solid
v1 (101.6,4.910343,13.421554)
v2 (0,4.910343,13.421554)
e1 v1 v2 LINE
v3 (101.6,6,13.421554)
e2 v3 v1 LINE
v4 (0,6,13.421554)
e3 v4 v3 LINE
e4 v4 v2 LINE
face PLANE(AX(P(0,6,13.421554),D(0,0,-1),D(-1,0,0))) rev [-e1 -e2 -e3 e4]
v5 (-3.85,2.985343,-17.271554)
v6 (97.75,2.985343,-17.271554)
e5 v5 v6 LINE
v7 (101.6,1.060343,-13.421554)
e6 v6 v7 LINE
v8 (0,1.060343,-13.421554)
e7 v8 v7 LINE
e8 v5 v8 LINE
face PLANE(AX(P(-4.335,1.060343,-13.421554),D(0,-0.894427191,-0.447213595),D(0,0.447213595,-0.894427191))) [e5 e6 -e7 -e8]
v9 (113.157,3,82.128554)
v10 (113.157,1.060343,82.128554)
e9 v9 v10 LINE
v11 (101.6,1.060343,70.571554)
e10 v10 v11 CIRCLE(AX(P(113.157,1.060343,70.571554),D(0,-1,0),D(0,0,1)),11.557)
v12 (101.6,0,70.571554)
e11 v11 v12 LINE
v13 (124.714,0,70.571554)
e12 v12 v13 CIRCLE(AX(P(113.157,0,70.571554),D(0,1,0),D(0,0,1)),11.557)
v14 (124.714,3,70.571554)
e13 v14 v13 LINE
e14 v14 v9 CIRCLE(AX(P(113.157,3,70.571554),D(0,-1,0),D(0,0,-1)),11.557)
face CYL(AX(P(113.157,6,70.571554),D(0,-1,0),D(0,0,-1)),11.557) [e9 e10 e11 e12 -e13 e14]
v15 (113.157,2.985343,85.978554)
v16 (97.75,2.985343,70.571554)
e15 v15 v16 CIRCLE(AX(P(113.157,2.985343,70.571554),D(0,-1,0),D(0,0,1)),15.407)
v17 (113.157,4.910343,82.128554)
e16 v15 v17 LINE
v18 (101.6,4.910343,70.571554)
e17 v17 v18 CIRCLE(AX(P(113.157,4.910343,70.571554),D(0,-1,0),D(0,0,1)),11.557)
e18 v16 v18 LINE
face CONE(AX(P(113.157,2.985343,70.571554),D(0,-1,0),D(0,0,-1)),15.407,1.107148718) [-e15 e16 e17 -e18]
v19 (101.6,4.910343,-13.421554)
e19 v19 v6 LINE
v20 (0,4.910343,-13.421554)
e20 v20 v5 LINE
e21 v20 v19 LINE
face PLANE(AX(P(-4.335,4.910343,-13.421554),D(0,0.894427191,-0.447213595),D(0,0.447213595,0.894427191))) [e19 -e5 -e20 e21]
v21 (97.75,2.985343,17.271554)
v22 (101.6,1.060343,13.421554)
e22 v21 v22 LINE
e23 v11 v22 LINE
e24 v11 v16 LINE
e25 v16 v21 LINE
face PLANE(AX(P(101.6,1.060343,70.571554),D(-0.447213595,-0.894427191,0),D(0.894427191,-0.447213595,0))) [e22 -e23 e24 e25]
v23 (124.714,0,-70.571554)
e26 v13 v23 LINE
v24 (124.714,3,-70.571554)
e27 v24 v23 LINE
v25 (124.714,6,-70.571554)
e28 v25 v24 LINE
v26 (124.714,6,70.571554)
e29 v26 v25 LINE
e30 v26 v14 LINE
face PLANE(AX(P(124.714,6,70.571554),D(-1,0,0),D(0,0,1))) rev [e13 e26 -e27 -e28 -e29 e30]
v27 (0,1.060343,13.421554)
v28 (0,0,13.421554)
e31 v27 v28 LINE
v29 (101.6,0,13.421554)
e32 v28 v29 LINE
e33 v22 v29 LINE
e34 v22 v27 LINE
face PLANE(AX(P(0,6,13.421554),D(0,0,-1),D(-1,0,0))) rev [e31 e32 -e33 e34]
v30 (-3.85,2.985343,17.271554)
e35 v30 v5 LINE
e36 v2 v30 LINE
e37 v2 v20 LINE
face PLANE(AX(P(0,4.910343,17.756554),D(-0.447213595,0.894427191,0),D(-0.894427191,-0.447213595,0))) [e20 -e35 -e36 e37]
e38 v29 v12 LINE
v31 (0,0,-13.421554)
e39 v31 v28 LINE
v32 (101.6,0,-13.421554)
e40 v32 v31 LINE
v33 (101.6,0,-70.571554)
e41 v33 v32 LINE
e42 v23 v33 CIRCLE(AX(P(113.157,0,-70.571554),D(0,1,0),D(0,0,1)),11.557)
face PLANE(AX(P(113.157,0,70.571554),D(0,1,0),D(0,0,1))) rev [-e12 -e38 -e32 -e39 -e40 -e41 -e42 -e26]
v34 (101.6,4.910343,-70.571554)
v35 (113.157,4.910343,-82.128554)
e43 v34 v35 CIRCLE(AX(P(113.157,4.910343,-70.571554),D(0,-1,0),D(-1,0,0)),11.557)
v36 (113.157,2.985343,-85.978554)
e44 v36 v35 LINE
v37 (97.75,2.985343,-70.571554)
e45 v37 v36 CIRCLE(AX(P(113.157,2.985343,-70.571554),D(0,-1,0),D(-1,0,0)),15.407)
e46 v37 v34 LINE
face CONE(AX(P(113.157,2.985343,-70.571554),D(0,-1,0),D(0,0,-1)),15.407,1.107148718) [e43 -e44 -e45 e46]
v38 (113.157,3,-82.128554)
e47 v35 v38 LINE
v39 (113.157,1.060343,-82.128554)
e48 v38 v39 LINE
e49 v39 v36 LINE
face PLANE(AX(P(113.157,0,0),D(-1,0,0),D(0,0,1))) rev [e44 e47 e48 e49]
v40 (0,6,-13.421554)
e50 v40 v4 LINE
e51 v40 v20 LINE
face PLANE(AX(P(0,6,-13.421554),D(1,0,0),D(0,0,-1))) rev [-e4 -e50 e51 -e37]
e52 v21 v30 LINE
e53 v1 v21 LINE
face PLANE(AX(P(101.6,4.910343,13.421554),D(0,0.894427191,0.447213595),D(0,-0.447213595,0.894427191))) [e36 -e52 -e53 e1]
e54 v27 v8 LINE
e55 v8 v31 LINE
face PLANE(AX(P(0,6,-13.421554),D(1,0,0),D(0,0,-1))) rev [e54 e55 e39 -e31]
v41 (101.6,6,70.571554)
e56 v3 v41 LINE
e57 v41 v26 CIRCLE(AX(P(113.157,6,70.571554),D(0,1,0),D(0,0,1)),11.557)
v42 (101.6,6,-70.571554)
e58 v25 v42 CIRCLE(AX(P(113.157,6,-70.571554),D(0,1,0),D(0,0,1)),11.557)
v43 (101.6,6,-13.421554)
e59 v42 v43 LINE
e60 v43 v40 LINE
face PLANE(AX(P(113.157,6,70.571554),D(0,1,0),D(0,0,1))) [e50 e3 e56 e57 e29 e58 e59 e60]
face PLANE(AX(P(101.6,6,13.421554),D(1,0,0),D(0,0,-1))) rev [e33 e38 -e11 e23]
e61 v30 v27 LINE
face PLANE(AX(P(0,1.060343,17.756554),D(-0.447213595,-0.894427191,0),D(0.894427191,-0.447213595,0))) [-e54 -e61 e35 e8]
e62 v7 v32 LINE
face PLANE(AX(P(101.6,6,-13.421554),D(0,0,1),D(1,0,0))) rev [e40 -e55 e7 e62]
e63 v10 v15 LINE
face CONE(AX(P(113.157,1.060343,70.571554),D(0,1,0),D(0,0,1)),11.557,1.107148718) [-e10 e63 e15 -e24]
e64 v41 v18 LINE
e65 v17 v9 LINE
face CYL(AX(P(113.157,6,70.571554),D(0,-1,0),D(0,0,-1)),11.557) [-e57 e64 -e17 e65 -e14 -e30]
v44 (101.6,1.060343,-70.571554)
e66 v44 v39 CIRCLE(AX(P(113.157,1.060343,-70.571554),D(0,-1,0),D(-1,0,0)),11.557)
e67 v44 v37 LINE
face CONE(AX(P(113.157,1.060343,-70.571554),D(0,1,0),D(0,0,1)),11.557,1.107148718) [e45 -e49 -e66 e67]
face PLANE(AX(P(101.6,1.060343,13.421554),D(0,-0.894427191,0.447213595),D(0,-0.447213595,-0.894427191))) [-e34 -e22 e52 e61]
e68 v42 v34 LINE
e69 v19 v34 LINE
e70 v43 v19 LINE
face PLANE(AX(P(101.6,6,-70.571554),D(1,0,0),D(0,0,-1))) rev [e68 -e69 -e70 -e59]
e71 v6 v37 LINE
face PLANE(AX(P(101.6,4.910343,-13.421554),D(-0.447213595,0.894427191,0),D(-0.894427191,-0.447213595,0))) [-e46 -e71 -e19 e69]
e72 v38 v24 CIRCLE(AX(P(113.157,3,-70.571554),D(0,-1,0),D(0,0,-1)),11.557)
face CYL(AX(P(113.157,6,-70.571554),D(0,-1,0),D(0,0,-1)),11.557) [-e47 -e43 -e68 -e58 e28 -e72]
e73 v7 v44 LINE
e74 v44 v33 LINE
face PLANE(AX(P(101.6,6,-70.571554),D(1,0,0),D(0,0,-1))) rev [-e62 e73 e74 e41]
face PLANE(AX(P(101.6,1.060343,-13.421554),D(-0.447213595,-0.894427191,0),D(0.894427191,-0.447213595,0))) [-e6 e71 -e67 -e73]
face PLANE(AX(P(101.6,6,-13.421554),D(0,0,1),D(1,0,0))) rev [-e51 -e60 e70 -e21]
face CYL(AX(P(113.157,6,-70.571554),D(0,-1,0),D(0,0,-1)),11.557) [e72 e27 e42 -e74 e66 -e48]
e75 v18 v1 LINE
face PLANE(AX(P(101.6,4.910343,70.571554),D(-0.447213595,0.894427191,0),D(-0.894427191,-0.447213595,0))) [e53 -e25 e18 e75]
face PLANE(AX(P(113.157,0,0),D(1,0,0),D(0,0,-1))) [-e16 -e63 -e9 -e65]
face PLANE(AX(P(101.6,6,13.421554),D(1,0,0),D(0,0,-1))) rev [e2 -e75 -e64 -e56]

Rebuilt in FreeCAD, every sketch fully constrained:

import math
import FreeCAD as App
import Part
import Sketcher
Q = App.Units.Quantity

doc = App.newDocument("Part")
params = doc.addObject("Spreadsheet::Sheet", "Params")
for row, (alias, value) in enumerate([
    ("sketch1_width", "4 in"),
    ("sketch1_radius", "0.455 in"),
    ("sketch1_height", "2.25 in"),
    ("pad1_length", "6 mm"),
    ("sketch3_width", "4 in"),
    ("sketch3_radius", "0.455 in"),
    ("sketch3_height", "2.25 in"),
], start=1):
    params.set(f"A{row}", alias)
    params.set(f"B{row}", "=" + value)
    params.setAlias(f"B{row}", alias)

body = doc.addObject("PartDesign::Body", "Body")

# Sketch on XZ plane
sketch1 = body.newObject("Sketcher::SketchObject", "Sketch")
sketch1.AttachmentSupport = (doc.getObject("XZ_Plane"), [""])
sketch1.MapMode = "FlatFace"
sketch1.addGeometry([
    Part.LineSegment(App.Vector(0, 13.421554, 0), App.Vector(101.6, 13.421554, 0)),  # 0
    Part.LineSegment(App.Vector(101.6, 13.421554, 0), App.Vector(101.6, 70.571554, 0)),  # 1
    Part.ArcOfCircle(Part.Circle(App.Vector(113.157, 70.571554, 0), App.Vector(0, 0, 1), 11.557), math.radians(0), math.radians(180)),  # 2
    Part.LineSegment(App.Vector(124.714, 70.571554, 0), App.Vector(124.714, -70.571554, 0)),  # 3
    Part.ArcOfCircle(Part.Circle(App.Vector(113.157, -70.571554, 0), App.Vector(0, 0, 1), 11.557), math.radians(180), math.radians(360)),  # 4
    Part.LineSegment(App.Vector(101.6, -70.571554, 0), App.Vector(101.6, -13.421554, 0)),  # 5
    Part.LineSegment(App.Vector(101.6, -13.421554, 0), App.Vector(0, -13.421554, 0)),  # 6
    Part.LineSegment(App.Vector(0, -13.421554, 0), App.Vector(0, 13.421554, 0)),  # 7
], False)
sketch1.addConstraint([
    Sketcher.Constraint("Coincident", 0, 2, 1, 1),
    Sketcher.Constraint("Tangent", 1, 2, 2, 2),
    Sketcher.Constraint("Tangent", 2, 1, 3, 1),
    Sketcher.Constraint("Tangent", 3, 2, 4, 2),
    Sketcher.Constraint("Tangent", 4, 1, 5, 1),
    Sketcher.Constraint("Coincident", 5, 2, 6, 1),
    Sketcher.Constraint("Coincident", 6, 2, 7, 1),
    Sketcher.Constraint("Coincident", 7, 2, 0, 1),
    Sketcher.Constraint("Horizontal", 0),
    Sketcher.Constraint("Vertical", 1),
    Sketcher.Constraint("Vertical", 3),
    Sketcher.Constraint("Vertical", 5),
    Sketcher.Constraint("Horizontal", 6),
    Sketcher.Constraint("Vertical", 7),
    Sketcher.Constraint("Equal", 2, 4),
    Sketcher.Constraint("Symmetric", 6, 2, 7, 2, -1, 1),
    Sketcher.Constraint("Equal", 1, 5),
    Sketcher.Constraint("DistanceX", 0, 1, 0, 2, Q("4 in")),
    Sketcher.Constraint("Radius", 2, Q("0.455 in")),
    Sketcher.Constraint("DistanceY", 1, 1, 1, 2, Q("2.25 in")),
    Sketcher.Constraint("DistanceY", 3, 2, 3, 1, Q("141.143107 mm")),
])
sketch1.setExpression("Constraints[17]", "Params.sketch1_width")
sketch1.setExpression("Constraints[18]", "Params.sketch1_radius")
sketch1.setExpression("Constraints[19]", "Params.sketch1_height")
pad1 = body.newObject("PartDesign::Pad", "Pad")
pad1.Profile = sketch1
pad1.setExpression("Length", "Params.pad1_length")
pad1.Reversed = True

# Sketch on YZ plane
sketch2 = body.newObject("Sketcher::SketchObject", "Sketch001")
sketch2.AttachmentSupport = (doc.getObject("YZ_Plane"), [""])
sketch2.MapMode = "FlatFace"
sketch2.AttachmentOffset = App.Placement(App.Vector(0, 0, 4.455 * 25.4), App.Rotation())
sketch2.addGeometry([
    Part.LineSegment(App.Vector(4.910343, -82.128554, 0), App.Vector(1.060343, -82.128554, 0)),
    Part.LineSegment(App.Vector(1.060343, -82.128554, 0), App.Vector(2.985343, -85.978554, 0)),
    Part.LineSegment(App.Vector(2.985343, -85.978554, 0), App.Vector(4.910343, -82.128554, 0)),
], False)
sketch2.addConstraint([
    Sketcher.Constraint("Coincident", 0, 2, 1, 1),
    Sketcher.Constraint("Coincident", 1, 2, 2, 1),
    Sketcher.Constraint("Coincident", 2, 2, 0, 1),
    Sketcher.Constraint("Horizontal", 0),
    Sketcher.Constraint("Equal", 1, 2),
    Sketcher.Constraint("DistanceX", 0, 2, 0, 1, Q("3.85 mm")),
    Sketcher.Constraint("DistanceY", 1, 2, 0, 2, Q("3.85 mm")),
    Sketcher.Constraint("DistanceX", -1, 1, 0, 2, Q("1.060343 mm")),
    Sketcher.Constraint("DistanceY", 0, 2, -1, 1, Q("82.128554 mm")),
])

# Sketch on XZ plane
sketch3 = body.newObject("Sketcher::SketchObject", "Sketch002")
sketch3.AttachmentSupport = (doc.getObject("XZ_Plane"), [""])
sketch3.MapMode = "FlatFace"
sketch3.AttachmentOffset = App.Placement(App.Vector(0, 0, -3), App.Rotation())
sketch3.addGeometry([
    Part.ArcOfCircle(Part.Circle(App.Vector(113.157, 70.571554, 0), App.Vector(0, 0, 1), 11.557), math.radians(90), math.radians(180)),  # 0
    Part.LineSegment(App.Vector(101.6, 70.571554, 0), App.Vector(101.6, 13.421554, 0)),  # 1
    Part.LineSegment(App.Vector(101.6, 13.421554, 0), App.Vector(0, 13.421554, 0)),  # 2
    Part.LineSegment(App.Vector(0, 13.421554, 0), App.Vector(0, -13.421554, 0)),  # 3
    Part.LineSegment(App.Vector(0, -13.421554, 0), App.Vector(101.6, -13.421554, 0)),  # 4
    Part.LineSegment(App.Vector(101.6, -13.421554, 0), App.Vector(101.6, -70.571554, 0)),  # 5
    Part.ArcOfCircle(Part.Circle(App.Vector(113.157, -70.571554, 0), App.Vector(0, 0, 1), 11.557), math.radians(-180), math.radians(-90)),  # 6
], False)
sketch3.addConstraint([
    Sketcher.Constraint("Tangent", 0, 2, 1, 1),
    Sketcher.Constraint("Coincident", 1, 2, 2, 1),
    Sketcher.Constraint("Coincident", 2, 2, 3, 1),
    Sketcher.Constraint("Coincident", 3, 2, 4, 1),
    Sketcher.Constraint("Coincident", 4, 2, 5, 1),
    Sketcher.Constraint("Tangent", 5, 2, 6, 1),
    Sketcher.Constraint("Vertical", 1),
    Sketcher.Constraint("Horizontal", 2),
    Sketcher.Constraint("Vertical", 3),
    Sketcher.Constraint("Horizontal", 4),
    Sketcher.Constraint("Vertical", 5),
    Sketcher.Constraint("Equal", 0, 6),
    Sketcher.Constraint("Symmetric", 2, 2, 3, 2, -1, 1),
    Sketcher.Constraint("Symmetric", 0, 3, 6, 3, -1),
    Sketcher.Constraint("Vertical", 6, 3, 0, 1),
    Sketcher.Constraint("Vertical", 0, 1, 6, 2),
    Sketcher.Constraint("DistanceX", 2, 2, 2, 1, Q("4 in")),
    Sketcher.Constraint("Radius", 0, Q("0.455 in")),
    Sketcher.Constraint("DistanceY", 1, 2, 1, 1, Q("2.25 in")),
    Sketcher.Constraint("DistanceY", 3, 2, 3, 1, Q("26.843107 mm")),
])
sketch3.setExpression("Constraints[16]", "Params.sketch3_width")
sketch3.setExpression("Constraints[17]", "Params.sketch3_radius")
sketch3.setExpression("Constraints[18]", "Params.sketch3_height")
doc.recompute()

additivepipe = body.newObject("PartDesign::AdditivePipe", "AdditivePipe")
additivepipe.Profile = sketch2
additivepipe.Spine = (sketch3, ["Edge1", "Edge2", "Edge3", "Edge4", "Edge5", "Edge6", "Edge7"])
additivepipe.Transition = "Right corner"

doc.recompute()
